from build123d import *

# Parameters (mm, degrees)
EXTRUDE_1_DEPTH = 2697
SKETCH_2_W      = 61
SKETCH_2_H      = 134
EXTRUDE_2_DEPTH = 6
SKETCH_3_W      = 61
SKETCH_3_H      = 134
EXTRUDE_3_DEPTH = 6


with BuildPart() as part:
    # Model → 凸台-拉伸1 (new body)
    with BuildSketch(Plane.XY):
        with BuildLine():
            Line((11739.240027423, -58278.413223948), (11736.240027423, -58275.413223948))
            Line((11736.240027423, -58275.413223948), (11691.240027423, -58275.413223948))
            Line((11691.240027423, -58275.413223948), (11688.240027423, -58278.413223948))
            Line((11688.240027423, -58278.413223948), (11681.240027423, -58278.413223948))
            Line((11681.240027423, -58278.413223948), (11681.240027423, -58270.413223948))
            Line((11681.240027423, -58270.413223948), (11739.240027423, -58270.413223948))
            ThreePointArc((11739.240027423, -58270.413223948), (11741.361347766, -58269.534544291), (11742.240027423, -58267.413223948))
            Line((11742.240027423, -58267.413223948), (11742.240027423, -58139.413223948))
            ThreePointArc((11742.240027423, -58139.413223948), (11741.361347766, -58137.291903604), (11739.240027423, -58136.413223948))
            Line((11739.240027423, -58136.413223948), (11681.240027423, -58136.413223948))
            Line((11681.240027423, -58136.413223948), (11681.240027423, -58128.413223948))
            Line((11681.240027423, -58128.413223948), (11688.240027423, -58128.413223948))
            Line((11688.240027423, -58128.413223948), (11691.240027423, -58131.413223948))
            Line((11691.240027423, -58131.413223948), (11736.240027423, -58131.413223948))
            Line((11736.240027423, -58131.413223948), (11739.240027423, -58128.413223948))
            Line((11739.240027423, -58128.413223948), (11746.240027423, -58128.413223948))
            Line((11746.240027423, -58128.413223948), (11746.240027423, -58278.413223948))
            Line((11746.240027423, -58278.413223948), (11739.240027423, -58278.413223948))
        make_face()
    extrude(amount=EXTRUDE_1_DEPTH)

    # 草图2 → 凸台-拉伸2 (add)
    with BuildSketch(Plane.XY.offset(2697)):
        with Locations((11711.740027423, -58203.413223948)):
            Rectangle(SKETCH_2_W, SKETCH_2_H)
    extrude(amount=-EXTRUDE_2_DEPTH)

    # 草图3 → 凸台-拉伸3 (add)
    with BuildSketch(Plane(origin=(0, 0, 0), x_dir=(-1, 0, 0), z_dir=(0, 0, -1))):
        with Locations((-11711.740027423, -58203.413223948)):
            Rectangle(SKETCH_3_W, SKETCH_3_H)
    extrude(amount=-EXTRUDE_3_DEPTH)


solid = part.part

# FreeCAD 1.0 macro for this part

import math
import FreeCAD as App
import Part
import Sketcher
from FreeCAD import Vector
Q = App.Units.Quantity


def add_polygon(sketch, points):
    """Adds a closed chain of lines whose ends are joined by coincident constraints."""
    first, n = sketch.GeometryCount, len(points)
    for a, b in zip(points, points[1:] + points[:1]):
        sketch.addGeometry(Part.LineSegment(App.Vector(*a, 0), App.Vector(*b, 0)), False)
    for i in range(n):
        sketch.addConstraint(Sketcher.Constraint("Coincident", first + i, 2, first + (i + 1) % n, 1))

doc = App.newDocument("Part")
body = doc.addObject("PartDesign::Body", "Body")

# Sketch on XY plane
sketch1 = doc.addObject("Sketcher::SketchObject", "Sketch")
body.addObject(sketch1)
sketch1.AttachmentSupport = (doc.XY_Plane, [""])
sketch1.MapMode = "FlatFace"
sketch1.addGeometry([
    Part.LineSegment(Vector(11736.2, -58275.4, 0), Vector(11739.2, -58278.4, 0)),  # 0
    Part.LineSegment(Vector(11739.2, -58278.4, 0), Vector(11746.2, -58278.4, 0)),  # 1
    Part.LineSegment(Vector(11746.2, -58278.4, 0), Vector(11746.2, -58128.4, 0)),  # 2
    Part.LineSegment(Vector(11746.2, -58128.4, 0), Vector(11739.2, -58128.4, 0)),  # 3
    Part.LineSegment(Vector(11739.2, -58128.4, 0), Vector(11736.2, -58131.4, 0)),  # 4
    Part.LineSegment(Vector(11736.2, -58131.4, 0), Vector(11691.2, -58131.4, 0)),  # 5
    Part.LineSegment(Vector(11691.2, -58131.4, 0), Vector(11688.2, -58128.4, 0)),  # 6
    Part.LineSegment(Vector(11688.2, -58128.4, 0), Vector(11681.2, -58128.4, 0)),  # 7
    Part.LineSegment(Vector(11681.2, -58128.4, 0), Vector(11681.2, -58136.4, 0)),  # 8
    Part.LineSegment(Vector(11681.2, -58136.4, 0), Vector(11739.2, -58136.4, 0)),  # 9
    Part.ArcOfCircle(Part.Circle(Vector(11739.2, -58139.4, 0), Vector(0, 0, 1), 3), math.radians(0), math.radians(90)),  # 10
    Part.LineSegment(Vector(11742.2, -58139.4, 0), Vector(11742.2, -58267.4, 0)),  # 11
    Part.ArcOfCircle(Part.Circle(Vector(11739.2, -58267.4, 0), Vector(0, 0, 1), 3), math.radians(-90), math.radians(0)),  # 12
    Part.LineSegment(Vector(11739.2, -58270.4, 0), Vector(11681.2, -58270.4, 0)),  # 13
    Part.LineSegment(Vector(11681.2, -58270.4, 0), Vector(11681.2, -58278.4, 0)),  # 14
    Part.LineSegment(Vector(11681.2, -58278.4, 0), Vector(11688.2, -58278.4, 0)),  # 15
    Part.LineSegment(Vector(11688.2, -58278.4, 0), Vector(11691.2, -58275.4, 0)),  # 16
    Part.LineSegment(Vector(11691.2, -58275.4, 0), Vector(11736.2, -58275.4, 0)),  # 17
], False)
sketch1.addConstraint([
    Sketcher.Constraint("Coincident", 0, 2, 1, 1),
    Sketcher.Constraint("Coincident", 1, 2, 2, 1),
    Sketcher.Constraint("Coincident", 2, 2, 3, 1),
    Sketcher.Constraint("Coincident", 3, 2, 4, 1),
    Sketcher.Constraint("Coincident", 4, 2, 5, 1),
    Sketcher.Constraint("Coincident", 5, 2, 6, 1),
    Sketcher.Constraint("Coincident", 6, 2, 7, 1),
    Sketcher.Constraint("Coincident", 7, 2, 8, 1),
    Sketcher.Constraint("Coincident", 8, 2, 9, 1),
    Sketcher.Constraint("Tangent", 9, 2, 10, 2),
    Sketcher.Constraint("Tangent", 10, 1, 11, 1),
    Sketcher.Constraint("Tangent", 11, 2, 12, 2),
    Sketcher.Constraint("Tangent", 12, 1, 13, 1),
    Sketcher.Constraint("Coincident", 13, 2, 14, 1),
    Sketcher.Constraint("Coincident", 14, 2, 15, 1),
    Sketcher.Constraint("Coincident", 15, 2, 16, 1),
    Sketcher.Constraint("Coincident", 16, 2, 17, 1),
    Sketcher.Constraint("Coincident", 17, 2, 0, 1),
    Sketcher.Constraint("Horizontal", 1),
    Sketcher.Constraint("Vertical", 2),
    Sketcher.Constraint("Horizontal", 3),
    Sketcher.Constraint("Horizontal", 5),
    Sketcher.Constraint("Horizontal", 7),
    Sketcher.Constraint("Vertical", 8),
    Sketcher.Constraint("Horizontal", 9),
    Sketcher.Constraint("Vertical", 11),
    Sketcher.Constraint("Horizontal", 13),
    Sketcher.Constraint("Vertical", 14),
    Sketcher.Constraint("Horizontal", 15),
    Sketcher.Constraint("Horizontal", 17),
    Sketcher.Constraint("Equal", 10, 12),
    Sketcher.Constraint("Perpendicular", 0, 4),
    Sketcher.Constraint("Perpendicular", 4, 6),
    Sketcher.Constraint("Perpendicular", 6, 16),
    Sketcher.Constraint("Horizontal", 3, 2, 6, 2),
    Sketcher.Constraint("Horizontal", 1, 2, 14, 2),
    Sketcher.Constraint("Vertical", 12, 3, 0, 2),
    Sketcher.Constraint("Vertical", 0, 2, 3, 2),
    Sketcher.Constraint("Vertical", 8, 2, 13, 2),
    Sketcher.Constraint("Vertical", 6, 2, 15, 2),
    Sketcher.Constraint("Vertical", 5, 2, 16, 2),
    Sketcher.Constraint("Vertical", 4, 2, 17, 2),
    Sketcher.Constraint("Equal", 3, 7),
    Sketcher.Constraint("Equal", 8, 14),
    Sketcher.Constraint("Radius", 10, Q("3 mm")),
    Sketcher.Constraint("DistanceX", 1, 1, 1, 2, Q("7 mm")),
    Sketcher.Constraint("DistanceX", 5, 2, 5, 1, Q("45 mm")),
    Sketcher.Constraint("DistanceX", 9, 1, 9, 2, Q("58 mm")),
    Sketcher.Constraint("DistanceY", 2, 1, 2, 2, Q("150 mm")),
    Sketcher.Constraint("DistanceY", 8, 2, 8, 1, Q("8 mm")),
    Sketcher.Constraint("DistanceX", -1, 1, 10, 3, Q("11739.240027 mm")),
    Sketcher.Constraint("DistanceY", 10, 3, -1, 1, Q("58139.413224 mm")),
])
pad1 = doc.addObject("PartDesign::Pad", "Pad")
body.addObject(pad1)
pad1.Profile = sketch1
pad1.Length = 2697

# Sketch on XY plane
sketch2 = doc.addObject("Sketcher::SketchObject", "Sketch001")
body.addObject(sketch2)
sketch2.AttachmentSupport = (doc.XY_Plane, [""])
sketch2.MapMode = "FlatFace"
sketch2.AttachmentOffset = App.Placement(Vector(0, 0, 2697), App.Rotation())
add_polygon(sketch2, [(11681, -58136), (11681, -58270), (11742, -58270), (11742, -58136)])  # lines 0-3
sketch2.addConstraint([
    Sketcher.Constraint("Vertical", 0),
    Sketcher.Constraint("Horizontal", 1),
    Sketcher.Constraint("Vertical", 2),
    Sketcher.Constraint("Horizontal", 3),
    Sketcher.Constraint("DistanceX", 1, 1, 1, 2, Q("61 mm")),
    Sketcher.Constraint("DistanceY", 0, 2, 0, 1, Q("134 mm")),
    Sketcher.Constraint("DistanceX", -1, 1, 0, 2, Q("11681.240027 mm")),
    Sketcher.Constraint("DistanceY", 0, 2, -1, 1, Q("58270.413224 mm")),
])
pad2 = doc.addObject("PartDesign::Pad", "Pad001")
body.addObject(pad2)
pad2.Profile = sketch2
pad2.Length = 6
pad2.Reversed = True

# Sketch on XY plane
sketch3 = doc.addObject("Sketcher::SketchObject", "Sketch002")
body.addObject(sketch3)
sketch3.AttachmentSupport = (doc.XY_Plane, [""])
sketch3.MapMode = "FlatFace"
add_polygon(sketch3, [(11742, -58136), (11742, -58270), (11681, -58270), (11681, -58136)])  # lines 0-3
sketch3.addConstraint([
    Sketcher.Constraint("Vertical", 0),
    Sketcher.Constraint("Horizontal", 1),
    Sketcher.Constraint("Vertical", 2),
    Sketcher.Constraint("Horizontal", 3),
    Sketcher.Constraint("DistanceX", 1, 2, 1, 1, Q("61 mm")),
    Sketcher.Constraint("DistanceY", 0, 2, 0, 1, Q("134 mm")),
    Sketcher.Constraint("DistanceX", -1, 1, 0, 2, Q("11742.240027 mm")),
    Sketcher.Constraint("DistanceY", 0, 2, -1, 1, Q("58270.413224 mm")),
])
pad3 = doc.addObject("PartDesign::Pad", "Pad002")
body.addObject(pad3)
pad3.Profile = sketch3
pad3.Length = 6

doc.recompute()
